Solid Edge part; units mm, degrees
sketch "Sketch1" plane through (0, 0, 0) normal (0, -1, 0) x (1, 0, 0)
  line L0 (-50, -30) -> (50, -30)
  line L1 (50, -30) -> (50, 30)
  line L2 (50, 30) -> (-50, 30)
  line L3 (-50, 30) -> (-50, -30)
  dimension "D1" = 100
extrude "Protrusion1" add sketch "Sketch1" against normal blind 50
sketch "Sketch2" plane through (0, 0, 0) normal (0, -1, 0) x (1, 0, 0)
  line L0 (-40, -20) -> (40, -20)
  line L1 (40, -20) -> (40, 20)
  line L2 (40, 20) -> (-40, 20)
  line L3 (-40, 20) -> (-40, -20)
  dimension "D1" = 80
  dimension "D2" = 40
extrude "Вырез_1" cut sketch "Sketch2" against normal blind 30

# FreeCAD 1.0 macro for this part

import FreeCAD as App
import Part
import Sketcher
from FreeCAD import Vector
Q = App.Units.Quantity


def add_polygon(sketch, points):
    """Adds a closed chain of lines whose ends are joined by coincident constraints."""
    first, n = sketch.GeometryCount, len(points)
    for a, b in zip(points, points[1:] + points[:1]):
        sketch.addGeometry(Part.LineSegment(App.Vector(*a, 0), App.Vector(*b, 0)), False)
    for i in range(n):
        sketch.addConstraint(Sketcher.Constraint("Coincident", first + i, 2, first + (i + 1) % n, 1))

doc = App.newDocument("Part")
body = doc.addObject("PartDesign::Body", "Body")

# Sketch on XZ plane
sketch1 = body.newObject("Sketcher::SketchObject", "Sketch")
sketch1.AttachmentSupport = (doc.getObject("XZ_Plane"), [""])
sketch1.MapMode = "FlatFace"
add_polygon(sketch1, [(-50, 30), (-50, -30), (50, -30), (50, 30)])  # lines 0-3
sketch1.addConstraint([
    Sketcher.Constraint("Vertical", 0),
    Sketcher.Constraint("Horizontal", 1),
    Sketcher.Constraint("Vertical", 2),
    Sketcher.Constraint("Horizontal", 3),
    Sketcher.Constraint("Symmetric", 0, 2, 2, 2, -1, 1),
    Sketcher.Constraint("DistanceX", 0, 2, -1, 1, Q("1.9685 in")),
    Sketcher.Constraint("DistanceY", 0, 2, 0, 1, Q("2.3622 in")),
])
pad1 = body.newObject("PartDesign::Pad", "Pad")
pad1.Profile = sketch1
pad1.Length = Q("1.9685039 in")
pad1.Reversed = True

# Sketch on XZ plane
sketch2 = body.newObject("Sketcher::SketchObject", "Sketch001")
sketch2.AttachmentSupport = (doc.getObject("XZ_Plane"), [""])
sketch2.MapMode = "FlatFace"
add_polygon(sketch2, [(-40, 20), (-40, -20), (40, -20), (40, 20)])  # lines 0-3
sketch2.addConstraint([
    Sketcher.Constraint("Vertical", 0),
    Sketcher.Constraint("Horizontal", 1),
    Sketcher.Constraint("Vertical", 2),
    Sketcher.Constraint("Horizontal", 3),
    Sketcher.Constraint("Symmetric", 0, 2, 2, 2, -1, 1),
    Sketcher.Constraint("DistanceY", 0, 2, 0, 1, Q("1.5748 in")),
    Sketcher.Constraint("DistanceX", 0, 2, -1, 1, Q("1.5748 in")),
])
pocket1 = body.newObject("PartDesign::Pocket", "Pocket")
pocket1.Profile = sketch2
pocket1.Length = Q("1.1811024 in")

doc.recompute()
